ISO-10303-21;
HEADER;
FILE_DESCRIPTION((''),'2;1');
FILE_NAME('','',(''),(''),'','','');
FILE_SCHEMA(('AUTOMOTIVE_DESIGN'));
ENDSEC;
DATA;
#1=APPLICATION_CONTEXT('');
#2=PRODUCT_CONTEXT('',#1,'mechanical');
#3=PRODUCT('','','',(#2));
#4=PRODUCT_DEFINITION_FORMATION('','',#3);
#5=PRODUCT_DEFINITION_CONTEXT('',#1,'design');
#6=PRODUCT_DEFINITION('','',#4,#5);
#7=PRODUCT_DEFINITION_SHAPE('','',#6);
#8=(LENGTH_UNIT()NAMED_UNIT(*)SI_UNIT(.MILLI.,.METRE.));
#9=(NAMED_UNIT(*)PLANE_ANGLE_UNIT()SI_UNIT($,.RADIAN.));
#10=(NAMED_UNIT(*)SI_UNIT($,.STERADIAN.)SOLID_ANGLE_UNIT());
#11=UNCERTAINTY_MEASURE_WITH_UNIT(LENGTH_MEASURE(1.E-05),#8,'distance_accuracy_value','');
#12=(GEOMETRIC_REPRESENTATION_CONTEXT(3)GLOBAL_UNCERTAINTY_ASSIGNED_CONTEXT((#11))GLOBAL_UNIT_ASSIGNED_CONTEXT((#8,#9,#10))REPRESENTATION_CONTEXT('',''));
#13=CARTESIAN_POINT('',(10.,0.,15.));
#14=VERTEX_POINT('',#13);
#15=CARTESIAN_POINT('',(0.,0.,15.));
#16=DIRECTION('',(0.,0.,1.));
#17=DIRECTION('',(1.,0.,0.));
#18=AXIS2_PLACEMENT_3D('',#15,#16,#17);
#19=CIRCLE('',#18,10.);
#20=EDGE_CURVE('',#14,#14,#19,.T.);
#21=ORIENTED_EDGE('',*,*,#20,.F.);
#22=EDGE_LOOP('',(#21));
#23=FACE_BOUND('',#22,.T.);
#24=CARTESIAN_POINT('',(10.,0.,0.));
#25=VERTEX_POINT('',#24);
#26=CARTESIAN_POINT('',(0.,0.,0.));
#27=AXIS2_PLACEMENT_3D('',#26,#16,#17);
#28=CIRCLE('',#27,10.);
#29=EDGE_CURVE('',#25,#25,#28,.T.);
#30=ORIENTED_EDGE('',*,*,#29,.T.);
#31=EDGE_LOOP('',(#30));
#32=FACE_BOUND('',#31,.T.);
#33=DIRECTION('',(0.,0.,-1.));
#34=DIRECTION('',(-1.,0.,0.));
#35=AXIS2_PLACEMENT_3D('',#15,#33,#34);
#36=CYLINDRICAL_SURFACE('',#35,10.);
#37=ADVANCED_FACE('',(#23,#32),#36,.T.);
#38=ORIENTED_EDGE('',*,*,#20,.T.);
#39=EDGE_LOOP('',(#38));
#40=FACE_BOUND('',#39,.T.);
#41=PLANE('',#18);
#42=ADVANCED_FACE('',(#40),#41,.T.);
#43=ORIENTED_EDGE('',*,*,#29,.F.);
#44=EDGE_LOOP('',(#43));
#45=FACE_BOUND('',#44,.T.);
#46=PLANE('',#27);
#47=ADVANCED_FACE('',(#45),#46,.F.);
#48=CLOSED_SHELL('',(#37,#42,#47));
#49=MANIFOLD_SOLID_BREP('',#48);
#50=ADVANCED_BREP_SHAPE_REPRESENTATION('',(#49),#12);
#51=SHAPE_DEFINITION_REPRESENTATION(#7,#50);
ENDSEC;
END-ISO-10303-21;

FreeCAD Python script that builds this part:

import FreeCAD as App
import Part
import Sketcher

doc = App.newDocument("Part")
body = doc.addObject("PartDesign::Body", "Body")

# Sketch on XY plane
sketch1 = body.newObject("Sketcher::SketchObject", "Sketch")
sketch1.AttachmentSupport = (doc.getObject("XY_Plane"), [""])
sketch1.MapMode = "FlatFace"
sketch1.addGeometry(Part.Circle(App.Vector(0, 0, 0), App.Vector(0, 0, 1), 10), False)
sketch1.addConstraint([
    Sketcher.Constraint("Coincident", 0, 3, -1, 1),
    Sketcher.Constraint("Diameter", 0, 20.0),
])
pad1 = body.newObject("PartDesign::Pad", "Pad")
pad1.Profile = sketch1
pad1.Length = 15

doc.recompute()
